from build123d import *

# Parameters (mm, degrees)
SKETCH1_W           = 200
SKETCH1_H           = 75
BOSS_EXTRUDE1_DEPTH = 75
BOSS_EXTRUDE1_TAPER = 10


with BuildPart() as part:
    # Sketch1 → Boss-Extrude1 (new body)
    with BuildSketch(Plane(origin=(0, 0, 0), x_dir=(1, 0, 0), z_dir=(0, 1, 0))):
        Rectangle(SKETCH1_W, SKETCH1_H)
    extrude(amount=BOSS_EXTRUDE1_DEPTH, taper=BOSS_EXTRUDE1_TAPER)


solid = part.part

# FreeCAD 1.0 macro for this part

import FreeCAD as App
import Part
import Sketcher

V = App.Vector
Q = App.Units.Quantity

doc = App.newDocument("Part")
body = doc.addObject("PartDesign::Body", "Body")

# Sketch on XZ plane
sketch1 = body.newObject("Sketcher::SketchObject", "Sketch")
sketch1.AttachmentSupport = (doc.getObject("XZ_Plane"), [""])
sketch1.MapMode = "FlatFace"
sketch1.addGeometry(Part.LineSegment(V(-100, -38, 0), V(-100, 38, 0)), False)
sketch1.addGeometry(Part.LineSegment(V(-100, 38, 0), V(100, 38, 0)), False)
sketch1.addGeometry(Part.LineSegment(V(100, 38, 0), V(100, -38, 0)), False)
sketch1.addGeometry(Part.LineSegment(V(100, -38, 0), V(-100, -38, 0)), False)
sketch1.addConstraint(Sketcher.Constraint("Coincident", 0, 2, 1, 1))
sketch1.addConstraint(Sketcher.Constraint("Coincident", 1, 2, 2, 1))
sketch1.addConstraint(Sketcher.Constraint("Coincident", 2, 2, 3, 1))
sketch1.addConstraint(Sketcher.Constraint("Coincident", 3, 2, 0, 1))
sketch1.addConstraint(Sketcher.Constraint("Vertical", 0))
sketch1.addConstraint(Sketcher.Constraint("Horizontal", 1))
sketch1.addConstraint(Sketcher.Constraint("Vertical", 2))
sketch1.addConstraint(Sketcher.Constraint("Horizontal", 3))
sketch1.addConstraint(Sketcher.Constraint("Symmetric", 0, 2, 2, 2, -1, 1))
sketch1.addConstraint(Sketcher.Constraint("DistanceX", 1, 1, 1, 2, Q("200 mm")))
sketch1.addConstraint(Sketcher.Constraint("DistanceY", 0, 1, 0, 2, Q("75 mm")))
pad1 = body.newObject("PartDesign::Pad", "Pad")
pad1.Profile = sketch1
pad1.Length = 75
pad1.Reversed = True
pad1.TaperAngle = -10

doc.recompute()
